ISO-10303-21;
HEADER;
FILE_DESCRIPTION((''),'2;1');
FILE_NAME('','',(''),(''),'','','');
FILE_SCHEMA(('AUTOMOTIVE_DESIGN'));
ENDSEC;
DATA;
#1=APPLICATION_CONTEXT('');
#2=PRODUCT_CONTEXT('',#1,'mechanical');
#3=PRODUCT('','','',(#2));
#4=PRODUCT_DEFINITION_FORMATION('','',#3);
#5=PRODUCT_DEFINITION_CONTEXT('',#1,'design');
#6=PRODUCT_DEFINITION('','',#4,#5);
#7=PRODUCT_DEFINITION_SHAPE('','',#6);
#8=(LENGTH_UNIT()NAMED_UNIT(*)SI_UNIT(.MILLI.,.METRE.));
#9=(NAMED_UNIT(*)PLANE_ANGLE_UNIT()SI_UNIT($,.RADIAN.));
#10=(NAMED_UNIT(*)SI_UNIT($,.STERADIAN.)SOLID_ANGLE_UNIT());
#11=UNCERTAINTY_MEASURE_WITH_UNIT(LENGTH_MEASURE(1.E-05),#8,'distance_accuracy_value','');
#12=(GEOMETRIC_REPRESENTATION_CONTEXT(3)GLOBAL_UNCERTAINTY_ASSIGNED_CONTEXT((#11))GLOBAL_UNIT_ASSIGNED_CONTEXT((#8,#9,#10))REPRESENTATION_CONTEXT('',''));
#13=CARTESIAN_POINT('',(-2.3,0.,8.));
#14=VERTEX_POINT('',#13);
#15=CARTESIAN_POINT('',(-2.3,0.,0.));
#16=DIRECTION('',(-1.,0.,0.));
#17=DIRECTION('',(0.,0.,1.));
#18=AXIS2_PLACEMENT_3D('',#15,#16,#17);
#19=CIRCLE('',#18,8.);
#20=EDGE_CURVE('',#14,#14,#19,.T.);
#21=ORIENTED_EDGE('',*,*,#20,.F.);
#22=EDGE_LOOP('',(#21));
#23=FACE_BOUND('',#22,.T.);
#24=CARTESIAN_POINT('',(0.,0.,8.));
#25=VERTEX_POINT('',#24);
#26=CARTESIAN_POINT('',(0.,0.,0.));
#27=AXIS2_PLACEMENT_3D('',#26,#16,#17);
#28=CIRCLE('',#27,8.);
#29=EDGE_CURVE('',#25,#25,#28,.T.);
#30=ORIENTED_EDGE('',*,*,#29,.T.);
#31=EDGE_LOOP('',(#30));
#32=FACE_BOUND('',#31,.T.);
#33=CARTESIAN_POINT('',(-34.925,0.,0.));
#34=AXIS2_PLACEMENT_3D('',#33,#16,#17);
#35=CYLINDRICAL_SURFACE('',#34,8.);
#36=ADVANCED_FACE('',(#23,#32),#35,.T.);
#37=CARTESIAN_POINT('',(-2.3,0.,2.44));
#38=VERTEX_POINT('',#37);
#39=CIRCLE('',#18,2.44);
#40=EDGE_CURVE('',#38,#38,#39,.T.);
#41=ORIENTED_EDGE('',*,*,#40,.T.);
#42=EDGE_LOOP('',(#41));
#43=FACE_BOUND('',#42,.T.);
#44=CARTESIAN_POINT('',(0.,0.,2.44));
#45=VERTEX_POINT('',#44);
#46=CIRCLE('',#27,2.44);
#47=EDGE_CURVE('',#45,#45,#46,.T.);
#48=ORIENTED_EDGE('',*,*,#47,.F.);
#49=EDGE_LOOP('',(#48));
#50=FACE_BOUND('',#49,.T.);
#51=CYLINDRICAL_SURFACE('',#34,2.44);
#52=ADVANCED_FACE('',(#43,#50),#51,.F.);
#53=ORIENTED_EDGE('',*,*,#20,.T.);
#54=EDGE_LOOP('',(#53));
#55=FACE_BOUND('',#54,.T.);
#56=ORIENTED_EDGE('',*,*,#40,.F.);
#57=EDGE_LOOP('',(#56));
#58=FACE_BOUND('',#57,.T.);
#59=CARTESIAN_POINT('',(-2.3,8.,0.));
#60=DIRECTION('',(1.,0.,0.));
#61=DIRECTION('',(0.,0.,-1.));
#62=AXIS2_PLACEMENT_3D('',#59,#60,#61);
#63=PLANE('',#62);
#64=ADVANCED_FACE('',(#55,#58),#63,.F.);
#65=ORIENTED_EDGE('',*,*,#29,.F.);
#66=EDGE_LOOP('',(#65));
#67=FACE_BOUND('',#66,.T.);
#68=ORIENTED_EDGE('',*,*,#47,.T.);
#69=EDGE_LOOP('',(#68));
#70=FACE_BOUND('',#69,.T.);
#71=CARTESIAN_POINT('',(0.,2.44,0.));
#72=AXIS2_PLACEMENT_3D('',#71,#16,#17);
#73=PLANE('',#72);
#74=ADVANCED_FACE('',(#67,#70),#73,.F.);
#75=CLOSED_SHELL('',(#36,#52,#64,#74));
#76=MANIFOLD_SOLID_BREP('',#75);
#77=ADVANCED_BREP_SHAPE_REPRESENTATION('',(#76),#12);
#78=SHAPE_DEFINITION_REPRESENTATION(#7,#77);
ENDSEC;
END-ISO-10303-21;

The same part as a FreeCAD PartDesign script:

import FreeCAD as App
import Part
import Sketcher

V = App.Vector

doc = App.newDocument("Part")
body = doc.addObject("PartDesign::Body", "Body")

# Sketch on XY plane
sketch1 = body.newObject("Sketcher::SketchObject", "Sketch")
sketch1.AttachmentSupport = (doc.getObject("XY_Plane"), [""])
sketch1.MapMode = "FlatFace"
sketch1.addGeometry(Part.LineSegment(V(-2.3, 8, 0), V(-2.3, 2.4, 0)), False)
sketch1.addGeometry(Part.LineSegment(V(-2.3, 2.4, 0), V(0, 2.4, 0)), False)
sketch1.addGeometry(Part.LineSegment(V(0, 2.4, 0), V(0, 8, 0)), False)
sketch1.addGeometry(Part.LineSegment(V(0, 8, 0), V(-2.3, 8, 0)), False)
sketch1.addConstraint(Sketcher.Constraint("Coincident", 0, 2, 1, 1))
sketch1.addConstraint(Sketcher.Constraint("Coincident", 1, 2, 2, 1))
sketch1.addConstraint(Sketcher.Constraint("Coincident", 2, 2, 3, 1))
sketch1.addConstraint(Sketcher.Constraint("Coincident", 3, 2, 0, 1))
sketch1.addConstraint(Sketcher.Constraint("Vertical", 0))
sketch1.addConstraint(Sketcher.Constraint("Horizontal", 1))
sketch1.addConstraint(Sketcher.Constraint("Vertical", 2))
sketch1.addConstraint(Sketcher.Constraint("Horizontal", 3))
sketch1.addConstraint(Sketcher.Constraint("PointOnObject", 1, 2, -2))
sketch1.addConstraint(Sketcher.Constraint("DistanceX", 1, 1, 1, 2, 2.3))
sketch1.addConstraint(Sketcher.Constraint("DistanceY", -1, 1, 2, 2, 8.0))
sketch1.addConstraint(Sketcher.Constraint("DistanceY", 0, 2, 0, 1, 5.56))
revolution = body.newObject("PartDesign::Revolution", "Revolution")
revolution.Profile = sketch1
revolution.ReferenceAxis = (sketch1, ["H_Axis"])
revolution.Angle = 360

doc.recompute()
